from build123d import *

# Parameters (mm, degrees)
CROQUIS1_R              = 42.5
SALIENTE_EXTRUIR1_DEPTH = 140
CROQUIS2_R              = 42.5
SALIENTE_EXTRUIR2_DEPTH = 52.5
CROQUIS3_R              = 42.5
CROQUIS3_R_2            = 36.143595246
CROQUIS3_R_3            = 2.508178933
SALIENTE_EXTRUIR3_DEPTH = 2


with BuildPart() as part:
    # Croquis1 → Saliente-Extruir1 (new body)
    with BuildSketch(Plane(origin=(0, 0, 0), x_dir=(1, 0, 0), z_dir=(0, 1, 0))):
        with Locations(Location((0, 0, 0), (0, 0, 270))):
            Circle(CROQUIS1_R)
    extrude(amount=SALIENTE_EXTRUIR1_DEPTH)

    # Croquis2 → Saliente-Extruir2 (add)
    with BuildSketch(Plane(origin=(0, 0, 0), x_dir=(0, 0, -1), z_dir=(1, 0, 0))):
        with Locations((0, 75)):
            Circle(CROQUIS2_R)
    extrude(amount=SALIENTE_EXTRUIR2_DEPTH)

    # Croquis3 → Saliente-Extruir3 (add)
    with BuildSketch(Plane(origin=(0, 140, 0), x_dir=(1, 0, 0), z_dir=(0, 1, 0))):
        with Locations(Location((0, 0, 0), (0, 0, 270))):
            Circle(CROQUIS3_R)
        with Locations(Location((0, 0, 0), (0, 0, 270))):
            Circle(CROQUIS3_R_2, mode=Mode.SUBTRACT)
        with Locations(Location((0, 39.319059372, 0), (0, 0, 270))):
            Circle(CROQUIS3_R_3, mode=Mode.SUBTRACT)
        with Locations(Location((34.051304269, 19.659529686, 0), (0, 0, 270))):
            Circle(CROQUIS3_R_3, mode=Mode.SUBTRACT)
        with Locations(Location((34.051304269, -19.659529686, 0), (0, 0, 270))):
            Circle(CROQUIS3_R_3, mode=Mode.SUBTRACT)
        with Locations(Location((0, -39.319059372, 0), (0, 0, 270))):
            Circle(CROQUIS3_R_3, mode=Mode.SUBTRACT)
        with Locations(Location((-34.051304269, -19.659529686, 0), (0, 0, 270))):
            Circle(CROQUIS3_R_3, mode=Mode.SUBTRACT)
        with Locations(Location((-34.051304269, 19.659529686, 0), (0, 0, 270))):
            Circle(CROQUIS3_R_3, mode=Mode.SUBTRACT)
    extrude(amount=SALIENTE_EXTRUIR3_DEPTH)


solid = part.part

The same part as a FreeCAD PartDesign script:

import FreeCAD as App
import Part
import Sketcher
from FreeCAD import Vector
Q = App.Units.Quantity

doc = App.newDocument("Part")
body = doc.addObject("PartDesign::Body", "Body")

# Sketch on XZ plane
sketch1 = body.newObject("Sketcher::SketchObject", "Sketch")
sketch1.AttachmentSupport = (doc.getObject("XZ_Plane"), [""])
sketch1.MapMode = "FlatFace"
sketch1.addGeometry(Part.Circle(Vector(0, 0, 0), Vector(0, 0, 1), 42), False)
sketch1.addConstraint(Sketcher.Constraint("Coincident", 0, 3, -1, 1))
sketch1.addConstraint(Sketcher.Constraint("Diameter", 0, Q("85 mm")))
pad1 = body.newObject("PartDesign::Pad", "Pad")
pad1.Profile = sketch1
pad1.Length = 140
pad1.Reversed = True

# Sketch on YZ plane
sketch2 = body.newObject("Sketcher::SketchObject", "Sketch001")
sketch2.AttachmentSupport = (doc.getObject("YZ_Plane"), [""])
sketch2.MapMode = "FlatFace"
sketch2.addGeometry(Part.Circle(Vector(75, 0, 0), Vector(0, 0, 1), 42), False)
sketch2.addConstraint(Sketcher.Constraint("PointOnObject", 0, 3, -1))
sketch2.addConstraint(Sketcher.Constraint("Diameter", 0, Q("85 mm")))
sketch2.addConstraint(Sketcher.Constraint("DistanceX", -1, 1, 0, 3, Q("75 mm")))
pad2 = body.newObject("PartDesign::Pad", "Pad001")
pad2.Profile = sketch2
pad2.Length = 52.5

# Sketch on XZ plane
sketch3 = body.newObject("Sketcher::SketchObject", "Sketch002")
sketch3.AttachmentSupport = (doc.getObject("XZ_Plane"), [""])
sketch3.MapMode = "FlatFace"
sketch3.AttachmentOffset = App.Placement(Vector(0, 0, -140), App.Rotation())
sketch3.addGeometry(Part.Circle(Vector(0, 0, 0), Vector(0, 0, 1), 42.5), False)
sketch3.addGeometry(Part.Circle(Vector(-34.1, -19.7, 0), Vector(0, 0, 1), 2.5), False)
sketch3.addGeometry(Part.Circle(Vector(0, -39.3, 0), Vector(0, 0, 1), 2.5), False)
sketch3.addGeometry(Part.Circle(Vector(-34.1, 19.7, 0), Vector(0, 0, 1), 2.5), False)
sketch3.addGeometry(Part.Circle(Vector(34.1, -19.7, 0), Vector(0, 0, 1), 2.5), False)
sketch3.addGeometry(Part.Circle(Vector(0, 0, 0), Vector(0, 0, 1), 36.1), False)
sketch3.addGeometry(Part.Circle(Vector(0, 39.3, 0), Vector(0, 0, 1), 2.5), False)
sketch3.addGeometry(Part.Circle(Vector(34.1, 19.7, 0), Vector(0, 0, 1), 2.5), False)
sketch3.addConstraint(Sketcher.Constraint("Coincident", 0, 3, -1, 1))
sketch3.addConstraint(Sketcher.Constraint("Coincident", 5, 3, -1, 1))
sketch3.addConstraint(Sketcher.Constraint("Equal", 1, 2))
sketch3.addConstraint(Sketcher.Constraint("Equal", 2, 3))
sketch3.addConstraint(Sketcher.Constraint("Equal", 3, 4))
sketch3.addConstraint(Sketcher.Constraint("Equal", 4, 6))
sketch3.addConstraint(Sketcher.Constraint("Equal", 6, 7))
sketch3.addConstraint(Sketcher.Constraint("Symmetric", 3, 3, 4, 3, -1, 1))
sketch3.addConstraint(Sketcher.Constraint("Symmetric", 2, 3, 6, 3, -1, 1))
sketch3.addConstraint(Sketcher.Constraint("Symmetric", 1, 3, 7, 3, -1, 1))
sketch3.addConstraint(Sketcher.Constraint("Symmetric", 1, 3, 4, 3, -2))
sketch3.addConstraint(Sketcher.Constraint("PointOnObject", 2, 3, -2))
sketch3.addConstraint(Sketcher.Constraint("Diameter", 0, Q("85 mm")))
sketch3.addConstraint(Sketcher.Constraint("Diameter", 5, Q("72.28719 mm")))
sketch3.addConstraint(Sketcher.Constraint("Diameter", 1, Q("5.016358 mm")))
sketch3.addConstraint(Sketcher.Constraint("DistanceY", 1, 3, -1, 1, Q("19.65953 mm")))
sketch3.addConstraint(Sketcher.Constraint("DistanceY", 2, 3, -1, 1, Q("39.319059 mm")))
sketch3.addConstraint(Sketcher.Constraint("DistanceX", 1, 3, 4, 3, Q("68.102609 mm")))
pad3 = body.newObject("PartDesign::Pad", "Pad002")
pad3.Profile = sketch3
pad3.Length = 2
pad3.Reversed = True

doc.recompute()
